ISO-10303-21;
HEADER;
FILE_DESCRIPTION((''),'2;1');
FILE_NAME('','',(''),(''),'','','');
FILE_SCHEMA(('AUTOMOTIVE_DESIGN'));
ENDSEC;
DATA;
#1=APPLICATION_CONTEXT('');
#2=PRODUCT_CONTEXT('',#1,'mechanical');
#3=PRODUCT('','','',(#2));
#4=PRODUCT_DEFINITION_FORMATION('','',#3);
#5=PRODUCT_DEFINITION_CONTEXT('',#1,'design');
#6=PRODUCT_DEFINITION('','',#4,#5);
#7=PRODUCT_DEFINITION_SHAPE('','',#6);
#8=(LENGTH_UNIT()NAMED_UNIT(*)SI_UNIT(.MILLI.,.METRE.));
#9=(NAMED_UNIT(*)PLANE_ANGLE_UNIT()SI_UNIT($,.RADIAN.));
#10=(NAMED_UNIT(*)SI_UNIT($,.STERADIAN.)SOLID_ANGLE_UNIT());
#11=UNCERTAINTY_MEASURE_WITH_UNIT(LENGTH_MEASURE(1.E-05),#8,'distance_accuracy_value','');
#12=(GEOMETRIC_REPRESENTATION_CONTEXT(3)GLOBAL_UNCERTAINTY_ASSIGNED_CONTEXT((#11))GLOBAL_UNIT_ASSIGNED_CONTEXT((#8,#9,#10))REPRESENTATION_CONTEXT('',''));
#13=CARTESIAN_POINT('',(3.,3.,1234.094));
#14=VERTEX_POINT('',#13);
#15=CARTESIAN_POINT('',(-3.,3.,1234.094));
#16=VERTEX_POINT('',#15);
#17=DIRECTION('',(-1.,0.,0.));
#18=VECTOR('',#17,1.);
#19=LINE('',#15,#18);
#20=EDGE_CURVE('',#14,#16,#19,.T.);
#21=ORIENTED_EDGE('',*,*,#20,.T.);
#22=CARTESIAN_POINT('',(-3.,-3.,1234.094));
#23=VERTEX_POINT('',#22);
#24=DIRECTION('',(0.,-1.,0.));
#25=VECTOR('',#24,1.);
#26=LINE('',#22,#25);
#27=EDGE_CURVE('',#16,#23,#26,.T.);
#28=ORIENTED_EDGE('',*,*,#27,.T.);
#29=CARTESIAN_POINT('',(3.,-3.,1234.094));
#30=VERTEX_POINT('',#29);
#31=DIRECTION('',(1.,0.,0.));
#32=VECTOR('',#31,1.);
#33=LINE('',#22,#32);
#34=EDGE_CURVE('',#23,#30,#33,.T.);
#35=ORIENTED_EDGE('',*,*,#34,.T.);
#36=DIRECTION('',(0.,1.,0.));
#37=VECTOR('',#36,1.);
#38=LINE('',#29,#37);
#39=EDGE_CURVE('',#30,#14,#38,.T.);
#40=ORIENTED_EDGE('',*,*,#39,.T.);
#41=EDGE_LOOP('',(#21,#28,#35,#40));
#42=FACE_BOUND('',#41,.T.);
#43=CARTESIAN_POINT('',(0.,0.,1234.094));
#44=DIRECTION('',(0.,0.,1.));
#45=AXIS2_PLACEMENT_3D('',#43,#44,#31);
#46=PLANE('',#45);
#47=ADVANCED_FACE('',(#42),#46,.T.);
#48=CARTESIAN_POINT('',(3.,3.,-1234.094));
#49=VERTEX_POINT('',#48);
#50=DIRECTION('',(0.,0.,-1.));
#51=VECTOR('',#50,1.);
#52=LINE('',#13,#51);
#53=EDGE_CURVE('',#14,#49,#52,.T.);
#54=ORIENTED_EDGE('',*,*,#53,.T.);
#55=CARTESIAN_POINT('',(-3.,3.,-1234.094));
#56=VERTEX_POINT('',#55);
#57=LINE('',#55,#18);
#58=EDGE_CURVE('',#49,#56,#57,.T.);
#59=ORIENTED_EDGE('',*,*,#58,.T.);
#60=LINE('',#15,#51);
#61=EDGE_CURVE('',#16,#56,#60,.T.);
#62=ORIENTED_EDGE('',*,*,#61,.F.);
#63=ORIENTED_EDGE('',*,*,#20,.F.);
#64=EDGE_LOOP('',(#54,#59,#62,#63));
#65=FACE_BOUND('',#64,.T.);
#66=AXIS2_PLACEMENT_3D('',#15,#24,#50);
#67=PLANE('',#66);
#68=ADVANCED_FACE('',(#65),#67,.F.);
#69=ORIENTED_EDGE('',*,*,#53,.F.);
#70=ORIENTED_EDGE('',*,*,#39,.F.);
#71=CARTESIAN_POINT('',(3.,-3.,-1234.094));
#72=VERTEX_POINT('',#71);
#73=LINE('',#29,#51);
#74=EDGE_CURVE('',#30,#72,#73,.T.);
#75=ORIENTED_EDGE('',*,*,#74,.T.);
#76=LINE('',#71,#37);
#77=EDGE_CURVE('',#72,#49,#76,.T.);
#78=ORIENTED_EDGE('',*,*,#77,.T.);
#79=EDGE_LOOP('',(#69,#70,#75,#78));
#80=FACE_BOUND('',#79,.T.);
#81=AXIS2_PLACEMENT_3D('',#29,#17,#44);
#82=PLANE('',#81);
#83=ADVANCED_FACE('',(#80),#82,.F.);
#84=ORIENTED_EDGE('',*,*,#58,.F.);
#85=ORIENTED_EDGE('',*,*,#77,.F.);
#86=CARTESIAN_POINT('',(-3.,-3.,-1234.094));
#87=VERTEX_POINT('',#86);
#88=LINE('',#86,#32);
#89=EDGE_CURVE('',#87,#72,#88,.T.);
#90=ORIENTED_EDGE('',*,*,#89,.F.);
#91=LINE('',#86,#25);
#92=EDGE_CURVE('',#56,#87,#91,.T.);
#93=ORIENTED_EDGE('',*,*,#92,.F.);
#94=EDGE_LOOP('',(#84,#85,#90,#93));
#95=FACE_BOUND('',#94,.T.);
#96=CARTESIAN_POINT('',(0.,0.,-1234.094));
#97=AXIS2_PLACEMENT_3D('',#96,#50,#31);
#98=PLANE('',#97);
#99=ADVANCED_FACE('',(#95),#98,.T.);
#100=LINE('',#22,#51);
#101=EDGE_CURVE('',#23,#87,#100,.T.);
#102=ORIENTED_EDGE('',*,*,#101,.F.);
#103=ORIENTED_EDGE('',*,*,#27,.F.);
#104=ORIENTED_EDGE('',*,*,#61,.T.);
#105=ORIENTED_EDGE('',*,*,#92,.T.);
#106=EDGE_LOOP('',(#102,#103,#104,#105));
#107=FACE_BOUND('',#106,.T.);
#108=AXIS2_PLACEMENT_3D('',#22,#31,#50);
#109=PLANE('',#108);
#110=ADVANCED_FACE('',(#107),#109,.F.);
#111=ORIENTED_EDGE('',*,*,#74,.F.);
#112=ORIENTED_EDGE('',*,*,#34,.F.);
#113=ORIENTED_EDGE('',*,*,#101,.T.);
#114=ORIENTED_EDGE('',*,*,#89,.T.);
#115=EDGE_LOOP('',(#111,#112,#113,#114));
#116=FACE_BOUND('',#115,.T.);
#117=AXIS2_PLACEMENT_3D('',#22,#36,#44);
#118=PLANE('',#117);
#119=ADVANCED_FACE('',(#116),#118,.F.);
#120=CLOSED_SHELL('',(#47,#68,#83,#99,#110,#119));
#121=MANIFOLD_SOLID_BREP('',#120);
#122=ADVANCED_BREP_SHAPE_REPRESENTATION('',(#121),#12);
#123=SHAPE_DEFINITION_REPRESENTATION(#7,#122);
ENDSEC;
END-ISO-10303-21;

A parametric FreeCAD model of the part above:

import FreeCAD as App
import Part
import Sketcher

V = App.Vector


def add_polygon(sketch, points):
    """Adds a closed chain of lines whose ends are joined by coincident constraints."""
    first, n = sketch.GeometryCount, len(points)
    for a, b in zip(points, points[1:] + points[:1]):
        sketch.addGeometry(Part.LineSegment(App.Vector(*a, 0), App.Vector(*b, 0)), False)
    for i in range(n):
        sketch.addConstraint(Sketcher.Constraint("Coincident", first + i, 2, first + (i + 1) % n, 1))

doc = App.newDocument("Part")
body = doc.addObject("PartDesign::Body", "Body")

sketch1 = doc.addObject("Sketcher::SketchObject", "Sketch")
body.addObject(sketch1)
sketch1.AttachmentSupport = (doc.XY_Plane, [""])
sketch1.MapMode = "FlatFace"
add_polygon(sketch1, [(-3, 3), (-3, -3), (3, -3), (3, 3)])
sketch1.addConstraint([
    Sketcher.Constraint("Vertical", 0),
    Sketcher.Constraint("Horizontal", 1),
    Sketcher.Constraint("Vertical", 2),
    Sketcher.Constraint("Horizontal", 3),
    Sketcher.Constraint("Symmetric", 0, 2, 2, 2, -1, 1),
    Sketcher.Constraint("Equal", 3, 0),
    Sketcher.Constraint("DistanceX", 1, 1, 1, 2, 6.0),
])
pad1 = doc.addObject("PartDesign::Pad", "Pad")
body.addObject(pad1)
pad1.Profile = sketch1
pad1.Length = 1234.094
body2 = doc.addObject("PartDesign::Body", "Body001")
doc.recompute()

body2.BaseFeature = body
doc.recompute()

mirroring = doc.addObject("Part::Mirroring", "Mirroring")
mirroring.Source = body
mirroring.Base = V(0, 0, 0)
mirroring.Normal = V(0, 0, 1)
body3 = doc.addObject("PartDesign::Body", "Body002")
body3.BaseFeature = mirroring
boolean = doc.addObject("PartDesign::Boolean", "Boolean")
body2.addObject(boolean)
boolean.Type = "Fuse"
boolean.addObjects([body3])
doc.recompute()
mirroring.Visibility = False

doc.recompute()
